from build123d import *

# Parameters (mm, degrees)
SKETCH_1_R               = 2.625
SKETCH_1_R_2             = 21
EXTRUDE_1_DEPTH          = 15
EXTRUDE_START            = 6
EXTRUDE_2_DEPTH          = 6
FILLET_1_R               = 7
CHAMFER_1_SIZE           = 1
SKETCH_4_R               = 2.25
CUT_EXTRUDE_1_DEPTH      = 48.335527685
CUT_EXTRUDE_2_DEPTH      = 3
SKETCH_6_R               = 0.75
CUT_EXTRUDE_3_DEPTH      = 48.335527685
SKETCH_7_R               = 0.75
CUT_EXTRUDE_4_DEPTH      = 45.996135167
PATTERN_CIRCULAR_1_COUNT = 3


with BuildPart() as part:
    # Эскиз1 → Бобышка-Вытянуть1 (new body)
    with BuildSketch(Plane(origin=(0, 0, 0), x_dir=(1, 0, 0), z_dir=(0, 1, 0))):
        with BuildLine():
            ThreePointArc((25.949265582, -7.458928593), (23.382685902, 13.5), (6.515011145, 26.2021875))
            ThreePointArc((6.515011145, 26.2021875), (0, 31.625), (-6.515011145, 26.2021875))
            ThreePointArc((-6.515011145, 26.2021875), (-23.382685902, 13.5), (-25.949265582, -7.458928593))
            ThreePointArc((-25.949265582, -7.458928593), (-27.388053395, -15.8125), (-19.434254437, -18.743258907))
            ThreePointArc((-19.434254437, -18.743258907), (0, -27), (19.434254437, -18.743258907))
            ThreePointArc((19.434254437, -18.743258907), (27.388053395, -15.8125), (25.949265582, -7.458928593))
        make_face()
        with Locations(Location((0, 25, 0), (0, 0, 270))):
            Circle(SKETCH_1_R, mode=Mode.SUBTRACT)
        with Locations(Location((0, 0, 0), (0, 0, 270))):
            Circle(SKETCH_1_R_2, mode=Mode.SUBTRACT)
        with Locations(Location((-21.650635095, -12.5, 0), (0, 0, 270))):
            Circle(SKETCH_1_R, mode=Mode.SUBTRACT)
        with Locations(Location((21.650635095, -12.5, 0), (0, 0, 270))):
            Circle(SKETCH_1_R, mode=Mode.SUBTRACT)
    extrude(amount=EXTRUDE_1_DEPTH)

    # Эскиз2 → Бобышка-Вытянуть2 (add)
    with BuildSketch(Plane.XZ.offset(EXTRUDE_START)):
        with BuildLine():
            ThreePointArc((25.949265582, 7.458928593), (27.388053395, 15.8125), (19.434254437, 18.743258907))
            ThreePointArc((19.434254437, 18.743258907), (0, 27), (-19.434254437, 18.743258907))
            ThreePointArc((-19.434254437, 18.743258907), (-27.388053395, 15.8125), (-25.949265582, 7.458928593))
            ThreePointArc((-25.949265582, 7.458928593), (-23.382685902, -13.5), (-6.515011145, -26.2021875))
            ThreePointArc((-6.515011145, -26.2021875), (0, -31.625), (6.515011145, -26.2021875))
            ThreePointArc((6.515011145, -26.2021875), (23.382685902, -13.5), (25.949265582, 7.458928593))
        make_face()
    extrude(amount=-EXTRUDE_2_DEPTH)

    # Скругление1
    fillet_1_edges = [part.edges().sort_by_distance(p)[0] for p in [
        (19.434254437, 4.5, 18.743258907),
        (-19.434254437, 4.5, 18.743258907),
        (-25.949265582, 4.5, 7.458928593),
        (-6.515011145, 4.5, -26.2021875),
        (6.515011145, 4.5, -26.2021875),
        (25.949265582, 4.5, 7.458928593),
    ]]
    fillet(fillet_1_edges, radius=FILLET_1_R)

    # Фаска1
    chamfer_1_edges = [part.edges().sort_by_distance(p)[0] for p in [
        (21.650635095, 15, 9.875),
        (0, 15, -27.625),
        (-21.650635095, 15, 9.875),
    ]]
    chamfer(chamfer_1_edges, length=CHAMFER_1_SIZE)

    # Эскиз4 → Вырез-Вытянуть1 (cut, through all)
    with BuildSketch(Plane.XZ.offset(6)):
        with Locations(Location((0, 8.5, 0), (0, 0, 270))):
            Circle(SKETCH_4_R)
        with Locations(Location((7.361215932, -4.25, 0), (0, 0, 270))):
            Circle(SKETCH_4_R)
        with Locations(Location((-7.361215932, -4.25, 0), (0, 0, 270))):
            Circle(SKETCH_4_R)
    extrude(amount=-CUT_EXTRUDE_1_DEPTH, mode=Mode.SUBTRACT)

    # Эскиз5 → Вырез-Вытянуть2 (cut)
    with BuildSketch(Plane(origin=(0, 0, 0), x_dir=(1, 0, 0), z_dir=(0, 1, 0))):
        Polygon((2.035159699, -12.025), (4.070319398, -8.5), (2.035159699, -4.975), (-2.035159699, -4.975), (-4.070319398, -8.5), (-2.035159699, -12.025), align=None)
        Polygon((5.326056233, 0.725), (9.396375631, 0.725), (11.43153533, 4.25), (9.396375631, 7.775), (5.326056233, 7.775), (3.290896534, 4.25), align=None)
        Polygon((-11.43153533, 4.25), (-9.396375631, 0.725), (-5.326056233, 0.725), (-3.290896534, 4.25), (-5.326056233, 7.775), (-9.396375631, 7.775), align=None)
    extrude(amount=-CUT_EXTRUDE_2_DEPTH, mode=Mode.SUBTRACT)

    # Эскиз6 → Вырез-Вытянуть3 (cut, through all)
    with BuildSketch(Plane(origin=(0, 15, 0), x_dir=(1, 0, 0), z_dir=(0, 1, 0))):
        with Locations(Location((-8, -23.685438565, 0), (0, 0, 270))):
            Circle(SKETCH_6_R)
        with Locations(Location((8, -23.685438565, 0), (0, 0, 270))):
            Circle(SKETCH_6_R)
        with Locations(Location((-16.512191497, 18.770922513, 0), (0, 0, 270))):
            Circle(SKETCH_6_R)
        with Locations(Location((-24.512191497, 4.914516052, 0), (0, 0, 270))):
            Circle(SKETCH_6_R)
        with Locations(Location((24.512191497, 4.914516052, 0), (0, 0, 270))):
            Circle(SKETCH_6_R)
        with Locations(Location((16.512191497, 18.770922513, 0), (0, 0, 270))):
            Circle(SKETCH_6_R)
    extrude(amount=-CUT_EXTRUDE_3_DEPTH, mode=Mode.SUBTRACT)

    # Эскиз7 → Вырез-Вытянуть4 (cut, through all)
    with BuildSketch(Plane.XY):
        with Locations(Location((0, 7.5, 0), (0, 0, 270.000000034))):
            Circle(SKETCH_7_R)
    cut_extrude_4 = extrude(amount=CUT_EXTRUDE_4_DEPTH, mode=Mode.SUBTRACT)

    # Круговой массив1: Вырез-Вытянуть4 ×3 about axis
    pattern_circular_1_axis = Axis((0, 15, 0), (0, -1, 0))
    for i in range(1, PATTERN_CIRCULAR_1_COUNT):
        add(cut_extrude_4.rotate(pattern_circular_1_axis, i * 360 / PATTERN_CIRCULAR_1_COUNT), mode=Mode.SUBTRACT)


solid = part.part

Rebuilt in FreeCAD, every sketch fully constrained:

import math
import FreeCAD as App
import Part
import Sketcher

V = App.Vector
Q = App.Units.Quantity


def edges_at(feature, points):
    """Names of the edges that pass closest to the given points."""
    edges = feature.Shape.Edges
    near = lambda p: min(range(len(edges)), key=lambda i: edges[i].distToShape(Part.Vertex(*p))[0])
    return sorted({f"Edge{near(p) + 1}" for p in points})

doc = App.newDocument("Part")
body = doc.addObject("PartDesign::Body", "Body")

sketch1 = body.newObject("Sketcher::SketchObject", "Sketch")
sketch1.AttachmentSupport = (doc.getObject("XZ_Plane"), [""])
sketch1.MapMode = "FlatFace"
sketch1.addGeometry([
    Part.ArcOfCircle(Part.Circle(V(0, 0, 0), V(0, 0, 1), 27), math.radians(-76.036914), math.radians(16.036914)),
    Part.ArcOfCircle(Part.Circle(V(0, -25, 0), V(0, 0, 1), 6.625), math.radians(-169.545056), math.radians(-10.454944)),
    Part.ArcOfCircle(Part.Circle(V(0, 0, 0), V(0, 0, 1), 27), math.radians(163.963086), math.radians(256.036914)),
    Part.ArcOfCircle(Part.Circle(V(-21.650635, 12.5, 0), V(0, 0, 1), 6.625), math.radians(70.454944), math.radians(229.545056)),
    Part.ArcOfCircle(Part.Circle(V(0, 0, 0), V(0, 0, 1), 27), math.radians(43.963086), math.radians(136.036914)),
    Part.ArcOfCircle(Part.Circle(V(21.650635, 12.5, 0), V(0, 0, 1), 6.625), math.radians(-49.545056), math.radians(109.545056)),
    Part.Circle(V(-21.650635, 12.5, 0), V(0, 0, 1), 2.625),
    Part.Circle(V(21.650635, 12.5, 0), V(0, 0, 1), 2.625),
    Part.Circle(V(0, 0, 0), V(0, 0, 1), 21),
    Part.Circle(V(0, -25, 0), V(0, 0, 1), 2.625),
], False)
sketch1.addConstraint([
    Sketcher.Constraint("Coincident", 0, 1, 1, 2),
    Sketcher.Constraint("Coincident", 1, 1, 2, 2),
    Sketcher.Constraint("Coincident", 2, 1, 3, 2),
    Sketcher.Constraint("Coincident", 3, 1, 4, 2),
    Sketcher.Constraint("Coincident", 4, 1, 5, 2),
    Sketcher.Constraint("Coincident", 5, 1, 0, 2),
    Sketcher.Constraint("Coincident", 0, 3, -1, 1),
    Sketcher.Constraint("Coincident", 2, 3, -1, 1),
    Sketcher.Constraint("Coincident", 4, 3, -1, 1),
    Sketcher.Constraint("Coincident", 8, 3, -1, 1),
    Sketcher.Constraint("Coincident", 6, 3, 3, 3),
    Sketcher.Constraint("Coincident", 7, 3, 5, 3),
    Sketcher.Constraint("Coincident", 9, 3, 1, 3),
    Sketcher.Constraint("Equal", 0, 2),
    Sketcher.Constraint("Equal", 1, 3),
    Sketcher.Constraint("Equal", 2, 4),
    Sketcher.Constraint("Equal", 3, 5),
    Sketcher.Constraint("Equal", 6, 7),
    Sketcher.Constraint("Equal", 7, 9),
    Sketcher.Constraint("Symmetric", 3, 3, 5, 3, -2),
    Sketcher.Constraint("PointOnObject", 1, 3, -2),
    Sketcher.Constraint("Diameter", 8, Q("42 mm")),
    Sketcher.Constraint("Radius", 0, Q("27 mm")),
    Sketcher.Constraint("Diameter", 6, Q("5.25 mm")),
    Sketcher.Constraint("DistanceY", 1, 3, -1, 1, Q("25 mm")),
    Sketcher.Constraint("Radius", 1, Q("6.625 mm")),
    Sketcher.Constraint("DistanceY", -1, 1, 3, 3, Q("12.5 mm")),
    Sketcher.Constraint("DistanceY", -1, 1, 2, 1, Q("7.458929 mm")),
])
pad1 = body.newObject("PartDesign::Pad", "Pad")
pad1.Profile = sketch1
pad1.Length = 15
pad1.Reversed = True

sketch2 = body.newObject("Sketcher::SketchObject", "Sketch001")
sketch2.AttachmentSupport = (doc.getObject("XZ_Plane"), [""])
sketch2.MapMode = "FlatFace"
sketch2.AttachmentOffset = App.Placement(V(0, 0, 6), App.Rotation())
sketch2.addGeometry([
    Part.ArcOfCircle(Part.Circle(V(21.650635, 12.5, 0), V(0, 0, 1), 6.625), math.radians(-49.545056), math.radians(109.545056)),
    Part.ArcOfCircle(Part.Circle(V(0, 0, 0), V(0, 0, 1), 27), math.radians(43.963086), math.radians(136.036914)),
    Part.ArcOfCircle(Part.Circle(V(-21.650635, 12.5, 0), V(0, 0, 1), 6.625), math.radians(70.454944), math.radians(229.545056)),
    Part.ArcOfCircle(Part.Circle(V(0, 0, 0), V(0, 0, 1), 27), math.radians(163.963086), math.radians(256.036914)),
    Part.ArcOfCircle(Part.Circle(V(0, -25, 0), V(0, 0, 1), 6.625), math.radians(-169.545056), math.radians(-10.454944)),
    Part.ArcOfCircle(Part.Circle(V(0, 0, 0), V(0, 0, 1), 27), math.radians(-76.036914), math.radians(16.036914)),
], False)
sketch2.addConstraint([
    Sketcher.Constraint("Coincident", 0, 2, 1, 1),
    Sketcher.Constraint("Coincident", 1, 2, 2, 1),
    Sketcher.Constraint("Coincident", 2, 2, 3, 1),
    Sketcher.Constraint("Coincident", 3, 2, 4, 1),
    Sketcher.Constraint("Coincident", 4, 2, 5, 1),
    Sketcher.Constraint("Coincident", 5, 2, 0, 1),
    Sketcher.Constraint("Coincident", 1, 3, -1, 1),
    Sketcher.Constraint("Coincident", 3, 3, -1, 1),
    Sketcher.Constraint("Coincident", 5, 3, -1, 1),
    Sketcher.Constraint("Equal", 0, 2),
    Sketcher.Constraint("Equal", 1, 3),
    Sketcher.Constraint("Equal", 2, 4),
    Sketcher.Constraint("Equal", 3, 5),
    Sketcher.Constraint("Symmetric", 0, 3, 2, 3, -2),
    Sketcher.Constraint("PointOnObject", 4, 3, -2),
    Sketcher.Constraint("Radius", 1, Q("27 mm")),
    Sketcher.Constraint("DistanceY", 4, 3, -1, 1, Q("25 mm")),
    Sketcher.Constraint("Radius", 0, Q("6.625 mm")),
    Sketcher.Constraint("DistanceY", -1, 1, 0, 3, Q("12.5 mm")),
    Sketcher.Constraint("DistanceY", -1, 1, 0, 2, Q("18.743259 mm")),
])
pad2 = body.newObject("PartDesign::Pad", "Pad001")
pad2.Profile = sketch2
pad2.Length = 6
pad2.Reversed = True
doc.recompute()

fillet = body.newObject("PartDesign::Fillet", "Fillet")
fillet.Base = (pad2, edges_at(pad2, [
    (19.434, 4.5, 18.743),
    (-19.434, 4.5, 18.743),
    (-25.949, 4.5, 7.459),
    (-6.515, 4.5, -26.202),
    (6.515, 4.5, -26.202),
    (25.949, 4.5, 7.459),
]))
fillet.Radius = 7
doc.recompute()

chamfer = body.newObject("PartDesign::Chamfer", "Chamfer")
chamfer.Base = (fillet, edges_at(fillet, [(21.651, 15, 9.875), (0, 15, -27.625), (-21.651, 15, 9.875)]))
chamfer.Size = 1

sketch3 = body.newObject("Sketcher::SketchObject", "Sketch002")
sketch3.AttachmentSupport = (doc.getObject("XZ_Plane"), [""])
sketch3.MapMode = "FlatFace"
sketch3.AttachmentOffset = App.Placement(V(0, 0, 6), App.Rotation())
sketch3.addGeometry([
    Part.Circle(V(0, 8.5, 0), V(0, 0, 1), 2.25),
    Part.Circle(V(7.361216, -4.25, 0), V(0, 0, 1), 2.25),
    Part.Circle(V(-7.361216, -4.25, 0), V(0, 0, 1), 2.25),
], False)
sketch3.addConstraint([
    Sketcher.Constraint("Equal", 0, 1),
    Sketcher.Constraint("Equal", 1, 2),
    Sketcher.Constraint("Symmetric", 1, 3, 2, 3, -2),
    Sketcher.Constraint("PointOnObject", 0, 3, -2),
    Sketcher.Constraint("Diameter", 0, Q("4.5 mm")),
    Sketcher.Constraint("DistanceY", -1, 1, 0, 3, Q("8.5 mm")),
    Sketcher.Constraint("DistanceY", 1, 3, -1, 1, Q("4.25 mm")),
    Sketcher.Constraint("DistanceX", 2, 3, 1, 3, Q("14.722432 mm")),
])
pocket1 = body.newObject("PartDesign::Pocket", "Pocket")
pocket1.Profile = sketch3
pocket1.Type = "ThroughAll"

sketch4 = body.newObject("Sketcher::SketchObject", "Sketch003")
sketch4.AttachmentSupport = (doc.getObject("XZ_Plane"), [""])
sketch4.MapMode = "FlatFace"
sketch4.addGeometry([
    Part.LineSegment(V(2.03516, 12.025, 0), V(4.070319, 8.5, 0)),
    Part.LineSegment(V(4.070319, 8.5, 0), V(2.03516, 4.975, 0)),
    Part.LineSegment(V(2.03516, 4.975, 0), V(-2.03516, 4.975, 0)),
    Part.LineSegment(V(-2.03516, 4.975, 0), V(-4.070319, 8.5, 0)),
    Part.LineSegment(V(-4.070319, 8.5, 0), V(-2.03516, 12.025, 0)),
    Part.LineSegment(V(-2.03516, 12.025, 0), V(2.03516, 12.025, 0)),
    Part.LineSegment(V(5.326056, -0.725, 0), V(9.396376, -0.725, 0)),
    Part.LineSegment(V(9.396376, -0.725, 0), V(11.431535, -4.25, 0)),
    Part.LineSegment(V(11.431535, -4.25, 0), V(9.396376, -7.775, 0)),
    Part.LineSegment(V(9.396376, -7.775, 0), V(5.326056, -7.775, 0)),
    Part.LineSegment(V(5.326056, -7.775, 0), V(3.290897, -4.25, 0)),
    Part.LineSegment(V(3.290897, -4.25, 0), V(5.326056, -0.725, 0)),
    Part.LineSegment(V(-11.431535, -4.25, 0), V(-9.396376, -0.725, 0)),
    Part.LineSegment(V(-9.396376, -0.725, 0), V(-5.326056, -0.725, 0)),
    Part.LineSegment(V(-5.326056, -0.725, 0), V(-3.290897, -4.25, 0)),
    Part.LineSegment(V(-3.290897, -4.25, 0), V(-5.326056, -7.775, 0)),
    Part.LineSegment(V(-5.326056, -7.775, 0), V(-9.396376, -7.775, 0)),
    Part.LineSegment(V(-9.396376, -7.775, 0), V(-11.431535, -4.25, 0)),
], False)
sketch4.addConstraint([
    Sketcher.Constraint("Coincident", 0, 2, 1, 1),
    Sketcher.Constraint("Coincident", 1, 2, 2, 1),
    Sketcher.Constraint("Coincident", 2, 2, 3, 1),
    Sketcher.Constraint("Coincident", 3, 2, 4, 1),
    Sketcher.Constraint("Coincident", 4, 2, 5, 1),
    Sketcher.Constraint("Coincident", 5, 2, 0, 1),
    Sketcher.Constraint("Coincident", 6, 2, 7, 1),
    Sketcher.Constraint("Coincident", 7, 2, 8, 1),
    Sketcher.Constraint("Coincident", 8, 2, 9, 1),
    Sketcher.Constraint("Coincident", 9, 2, 10, 1),
    Sketcher.Constraint("Coincident", 10, 2, 11, 1),
    Sketcher.Constraint("Coincident", 11, 2, 6, 1),
    Sketcher.Constraint("Coincident", 12, 2, 13, 1),
    Sketcher.Constraint("Coincident", 13, 2, 14, 1),
    Sketcher.Constraint("Coincident", 14, 2, 15, 1),
    Sketcher.Constraint("Coincident", 15, 2, 16, 1),
    Sketcher.Constraint("Coincident", 16, 2, 17, 1),
    Sketcher.Constraint("Coincident", 17, 2, 12, 1),
    Sketcher.Constraint("Horizontal", 2),
    Sketcher.Constraint("Horizontal", 5),
    Sketcher.Constraint("Horizontal", 6),
    Sketcher.Constraint("Horizontal", 9),
    Sketcher.Constraint("Horizontal", 13),
    Sketcher.Constraint("Horizontal", 16),
    Sketcher.Constraint("Symmetric", 0, 2, 3, 2, -2),
    Sketcher.Constraint("Symmetric", 6, 2, 12, 2, -2),
    Sketcher.Constraint("Symmetric", 10, 2, 14, 2, -2),
    Sketcher.Constraint("Symmetric", 9, 2, 15, 2, -2),
    Sketcher.Constraint("Symmetric", 7, 2, 17, 2, -2),
    Sketcher.Constraint("Parallel", 0, 3),
    Sketcher.Constraint("Parallel", 1, 4),
    Sketcher.Constraint("Parallel", 3, 7),
    Sketcher.Constraint("Parallel", 4, 8),
    Sketcher.Constraint("Parallel", 7, 10),
    Sketcher.Constraint("Parallel", 8, 11),
    Sketcher.Constraint("Parallel", 11, 12),
    Sketcher.Constraint("Parallel", 10, 14),
    Sketcher.Constraint("Parallel", 14, 17),
    Sketcher.Constraint("Horizontal", 7, 2, 10, 2),
    Sketcher.Constraint("Vertical", 2, 2, 4, 2),
    Sketcher.Constraint("Vertical", 6, 2, 8, 2),
    Sketcher.Constraint("Equal", 5, 6),
    Sketcher.Constraint("Equal", 4, 7),
    Sketcher.Constraint("Angle", 0, Q("-60 deg")),
    Sketcher.Constraint("DistanceY", -1, 1, 0, 2, Q("8.5 mm")),
    Sketcher.Constraint("DistanceY", 6, 2, 1, 2, Q("5.7 mm")),
    Sketcher.Constraint("DistanceY", 7, 2, -1, 1, Q("4.25 mm")),
    Sketcher.Constraint("DistanceX", 2, 2, 2, 1, Q("4.070319 mm")),
    Sketcher.Constraint("DistanceX", 12, 2, 11, 2, Q("14.722432 mm")),
])
pocket2 = body.newObject("PartDesign::Pocket", "Pocket001")
pocket2.Profile = sketch4
pocket2.Length = 3
pocket2.Reversed = True

sketch5 = body.newObject("Sketcher::SketchObject", "Sketch004")
sketch5.AttachmentSupport = (doc.getObject("XZ_Plane"), [""])
sketch5.MapMode = "FlatFace"
sketch5.AttachmentOffset = App.Placement(V(0, 0, -15), App.Rotation())
sketch5.addGeometry([
    Part.Circle(V(-8, 23.685439, 0), V(0, 0, 1), 0.75),
    Part.Circle(V(8, 23.685439, 0), V(0, 0, 1), 0.75),
    Part.Circle(V(-16.512191, -18.770923, 0), V(0, 0, 1), 0.75),
    Part.Circle(V(-24.512191, -4.914516, 0), V(0, 0, 1), 0.75),
    Part.Circle(V(24.512191, -4.914516, 0), V(0, 0, 1), 0.75),
    Part.Circle(V(16.512191, -18.770923, 0), V(0, 0, 1), 0.75),
], False)
sketch5.addConstraint([
    Sketcher.Constraint("Equal", 0, 1),
    Sketcher.Constraint("Equal", 1, 2),
    Sketcher.Constraint("Equal", 2, 3),
    Sketcher.Constraint("Equal", 3, 4),
    Sketcher.Constraint("Equal", 4, 5),
    Sketcher.Constraint("Symmetric", 0, 3, 1, 3, -2),
    Sketcher.Constraint("Symmetric", 3, 3, 4, 3, -2),
    Sketcher.Constraint("Symmetric", 2, 3, 5, 3, -2),
    Sketcher.Constraint("Diameter", 0, Q("1.5 mm")),
    Sketcher.Constraint("DistanceX", 0, 3, -1, 1, Q("8 mm")),
    Sketcher.Constraint("DistanceX", 3, 3, 2, 3, Q("8 mm")),
    Sketcher.Constraint("DistanceY", -1, 1, 0, 3, Q("23.685439 mm")),
    Sketcher.Constraint("DistanceX", 2, 3, -1, 1, Q("16.512191 mm")),
    Sketcher.Constraint("DistanceY", 2, 3, 0, 3, Q("42.456361 mm")),
    Sketcher.Constraint("DistanceY", 3, 3, -1, 1, Q("4.914516 mm")),
])
pocket3 = body.newObject("PartDesign::Pocket", "Pocket002")
pocket3.Profile = sketch5
pocket3.Type = "ThroughAll"
pocket3.Reversed = True

sketch6 = body.newObject("Sketcher::SketchObject", "Sketch005")
sketch6.AttachmentSupport = (doc.getObject("XY_Plane"), [""])
sketch6.MapMode = "FlatFace"
sketch6.addGeometry(Part.Circle(V(0, 7.5, 0), V(0, 0, 1), 0.75), False)
sketch6.addConstraint([
    Sketcher.Constraint("PointOnObject", 0, 3, -2),
    Sketcher.Constraint("Diameter", 0, Q("1.5 mm")),
    Sketcher.Constraint("DistanceY", -1, 1, 0, 3, Q("7.5 mm")),
])
pocket4 = body.newObject("PartDesign::Pocket", "Pocket003")
pocket4.Profile = sketch6
pocket4.Type = "ThroughAll"
pocket4.Reversed = True
doc.recompute()

polarpattern = body.newObject("PartDesign::PolarPattern", "PolarPattern")
polarpattern.Originals = [pocket4]
polarpattern.Axis = (doc.getObject("Y_Axis"), [""])
polarpattern.Angle = 360
polarpattern.Occurrences = 3
body.Tip = polarpattern

doc.recompute()
